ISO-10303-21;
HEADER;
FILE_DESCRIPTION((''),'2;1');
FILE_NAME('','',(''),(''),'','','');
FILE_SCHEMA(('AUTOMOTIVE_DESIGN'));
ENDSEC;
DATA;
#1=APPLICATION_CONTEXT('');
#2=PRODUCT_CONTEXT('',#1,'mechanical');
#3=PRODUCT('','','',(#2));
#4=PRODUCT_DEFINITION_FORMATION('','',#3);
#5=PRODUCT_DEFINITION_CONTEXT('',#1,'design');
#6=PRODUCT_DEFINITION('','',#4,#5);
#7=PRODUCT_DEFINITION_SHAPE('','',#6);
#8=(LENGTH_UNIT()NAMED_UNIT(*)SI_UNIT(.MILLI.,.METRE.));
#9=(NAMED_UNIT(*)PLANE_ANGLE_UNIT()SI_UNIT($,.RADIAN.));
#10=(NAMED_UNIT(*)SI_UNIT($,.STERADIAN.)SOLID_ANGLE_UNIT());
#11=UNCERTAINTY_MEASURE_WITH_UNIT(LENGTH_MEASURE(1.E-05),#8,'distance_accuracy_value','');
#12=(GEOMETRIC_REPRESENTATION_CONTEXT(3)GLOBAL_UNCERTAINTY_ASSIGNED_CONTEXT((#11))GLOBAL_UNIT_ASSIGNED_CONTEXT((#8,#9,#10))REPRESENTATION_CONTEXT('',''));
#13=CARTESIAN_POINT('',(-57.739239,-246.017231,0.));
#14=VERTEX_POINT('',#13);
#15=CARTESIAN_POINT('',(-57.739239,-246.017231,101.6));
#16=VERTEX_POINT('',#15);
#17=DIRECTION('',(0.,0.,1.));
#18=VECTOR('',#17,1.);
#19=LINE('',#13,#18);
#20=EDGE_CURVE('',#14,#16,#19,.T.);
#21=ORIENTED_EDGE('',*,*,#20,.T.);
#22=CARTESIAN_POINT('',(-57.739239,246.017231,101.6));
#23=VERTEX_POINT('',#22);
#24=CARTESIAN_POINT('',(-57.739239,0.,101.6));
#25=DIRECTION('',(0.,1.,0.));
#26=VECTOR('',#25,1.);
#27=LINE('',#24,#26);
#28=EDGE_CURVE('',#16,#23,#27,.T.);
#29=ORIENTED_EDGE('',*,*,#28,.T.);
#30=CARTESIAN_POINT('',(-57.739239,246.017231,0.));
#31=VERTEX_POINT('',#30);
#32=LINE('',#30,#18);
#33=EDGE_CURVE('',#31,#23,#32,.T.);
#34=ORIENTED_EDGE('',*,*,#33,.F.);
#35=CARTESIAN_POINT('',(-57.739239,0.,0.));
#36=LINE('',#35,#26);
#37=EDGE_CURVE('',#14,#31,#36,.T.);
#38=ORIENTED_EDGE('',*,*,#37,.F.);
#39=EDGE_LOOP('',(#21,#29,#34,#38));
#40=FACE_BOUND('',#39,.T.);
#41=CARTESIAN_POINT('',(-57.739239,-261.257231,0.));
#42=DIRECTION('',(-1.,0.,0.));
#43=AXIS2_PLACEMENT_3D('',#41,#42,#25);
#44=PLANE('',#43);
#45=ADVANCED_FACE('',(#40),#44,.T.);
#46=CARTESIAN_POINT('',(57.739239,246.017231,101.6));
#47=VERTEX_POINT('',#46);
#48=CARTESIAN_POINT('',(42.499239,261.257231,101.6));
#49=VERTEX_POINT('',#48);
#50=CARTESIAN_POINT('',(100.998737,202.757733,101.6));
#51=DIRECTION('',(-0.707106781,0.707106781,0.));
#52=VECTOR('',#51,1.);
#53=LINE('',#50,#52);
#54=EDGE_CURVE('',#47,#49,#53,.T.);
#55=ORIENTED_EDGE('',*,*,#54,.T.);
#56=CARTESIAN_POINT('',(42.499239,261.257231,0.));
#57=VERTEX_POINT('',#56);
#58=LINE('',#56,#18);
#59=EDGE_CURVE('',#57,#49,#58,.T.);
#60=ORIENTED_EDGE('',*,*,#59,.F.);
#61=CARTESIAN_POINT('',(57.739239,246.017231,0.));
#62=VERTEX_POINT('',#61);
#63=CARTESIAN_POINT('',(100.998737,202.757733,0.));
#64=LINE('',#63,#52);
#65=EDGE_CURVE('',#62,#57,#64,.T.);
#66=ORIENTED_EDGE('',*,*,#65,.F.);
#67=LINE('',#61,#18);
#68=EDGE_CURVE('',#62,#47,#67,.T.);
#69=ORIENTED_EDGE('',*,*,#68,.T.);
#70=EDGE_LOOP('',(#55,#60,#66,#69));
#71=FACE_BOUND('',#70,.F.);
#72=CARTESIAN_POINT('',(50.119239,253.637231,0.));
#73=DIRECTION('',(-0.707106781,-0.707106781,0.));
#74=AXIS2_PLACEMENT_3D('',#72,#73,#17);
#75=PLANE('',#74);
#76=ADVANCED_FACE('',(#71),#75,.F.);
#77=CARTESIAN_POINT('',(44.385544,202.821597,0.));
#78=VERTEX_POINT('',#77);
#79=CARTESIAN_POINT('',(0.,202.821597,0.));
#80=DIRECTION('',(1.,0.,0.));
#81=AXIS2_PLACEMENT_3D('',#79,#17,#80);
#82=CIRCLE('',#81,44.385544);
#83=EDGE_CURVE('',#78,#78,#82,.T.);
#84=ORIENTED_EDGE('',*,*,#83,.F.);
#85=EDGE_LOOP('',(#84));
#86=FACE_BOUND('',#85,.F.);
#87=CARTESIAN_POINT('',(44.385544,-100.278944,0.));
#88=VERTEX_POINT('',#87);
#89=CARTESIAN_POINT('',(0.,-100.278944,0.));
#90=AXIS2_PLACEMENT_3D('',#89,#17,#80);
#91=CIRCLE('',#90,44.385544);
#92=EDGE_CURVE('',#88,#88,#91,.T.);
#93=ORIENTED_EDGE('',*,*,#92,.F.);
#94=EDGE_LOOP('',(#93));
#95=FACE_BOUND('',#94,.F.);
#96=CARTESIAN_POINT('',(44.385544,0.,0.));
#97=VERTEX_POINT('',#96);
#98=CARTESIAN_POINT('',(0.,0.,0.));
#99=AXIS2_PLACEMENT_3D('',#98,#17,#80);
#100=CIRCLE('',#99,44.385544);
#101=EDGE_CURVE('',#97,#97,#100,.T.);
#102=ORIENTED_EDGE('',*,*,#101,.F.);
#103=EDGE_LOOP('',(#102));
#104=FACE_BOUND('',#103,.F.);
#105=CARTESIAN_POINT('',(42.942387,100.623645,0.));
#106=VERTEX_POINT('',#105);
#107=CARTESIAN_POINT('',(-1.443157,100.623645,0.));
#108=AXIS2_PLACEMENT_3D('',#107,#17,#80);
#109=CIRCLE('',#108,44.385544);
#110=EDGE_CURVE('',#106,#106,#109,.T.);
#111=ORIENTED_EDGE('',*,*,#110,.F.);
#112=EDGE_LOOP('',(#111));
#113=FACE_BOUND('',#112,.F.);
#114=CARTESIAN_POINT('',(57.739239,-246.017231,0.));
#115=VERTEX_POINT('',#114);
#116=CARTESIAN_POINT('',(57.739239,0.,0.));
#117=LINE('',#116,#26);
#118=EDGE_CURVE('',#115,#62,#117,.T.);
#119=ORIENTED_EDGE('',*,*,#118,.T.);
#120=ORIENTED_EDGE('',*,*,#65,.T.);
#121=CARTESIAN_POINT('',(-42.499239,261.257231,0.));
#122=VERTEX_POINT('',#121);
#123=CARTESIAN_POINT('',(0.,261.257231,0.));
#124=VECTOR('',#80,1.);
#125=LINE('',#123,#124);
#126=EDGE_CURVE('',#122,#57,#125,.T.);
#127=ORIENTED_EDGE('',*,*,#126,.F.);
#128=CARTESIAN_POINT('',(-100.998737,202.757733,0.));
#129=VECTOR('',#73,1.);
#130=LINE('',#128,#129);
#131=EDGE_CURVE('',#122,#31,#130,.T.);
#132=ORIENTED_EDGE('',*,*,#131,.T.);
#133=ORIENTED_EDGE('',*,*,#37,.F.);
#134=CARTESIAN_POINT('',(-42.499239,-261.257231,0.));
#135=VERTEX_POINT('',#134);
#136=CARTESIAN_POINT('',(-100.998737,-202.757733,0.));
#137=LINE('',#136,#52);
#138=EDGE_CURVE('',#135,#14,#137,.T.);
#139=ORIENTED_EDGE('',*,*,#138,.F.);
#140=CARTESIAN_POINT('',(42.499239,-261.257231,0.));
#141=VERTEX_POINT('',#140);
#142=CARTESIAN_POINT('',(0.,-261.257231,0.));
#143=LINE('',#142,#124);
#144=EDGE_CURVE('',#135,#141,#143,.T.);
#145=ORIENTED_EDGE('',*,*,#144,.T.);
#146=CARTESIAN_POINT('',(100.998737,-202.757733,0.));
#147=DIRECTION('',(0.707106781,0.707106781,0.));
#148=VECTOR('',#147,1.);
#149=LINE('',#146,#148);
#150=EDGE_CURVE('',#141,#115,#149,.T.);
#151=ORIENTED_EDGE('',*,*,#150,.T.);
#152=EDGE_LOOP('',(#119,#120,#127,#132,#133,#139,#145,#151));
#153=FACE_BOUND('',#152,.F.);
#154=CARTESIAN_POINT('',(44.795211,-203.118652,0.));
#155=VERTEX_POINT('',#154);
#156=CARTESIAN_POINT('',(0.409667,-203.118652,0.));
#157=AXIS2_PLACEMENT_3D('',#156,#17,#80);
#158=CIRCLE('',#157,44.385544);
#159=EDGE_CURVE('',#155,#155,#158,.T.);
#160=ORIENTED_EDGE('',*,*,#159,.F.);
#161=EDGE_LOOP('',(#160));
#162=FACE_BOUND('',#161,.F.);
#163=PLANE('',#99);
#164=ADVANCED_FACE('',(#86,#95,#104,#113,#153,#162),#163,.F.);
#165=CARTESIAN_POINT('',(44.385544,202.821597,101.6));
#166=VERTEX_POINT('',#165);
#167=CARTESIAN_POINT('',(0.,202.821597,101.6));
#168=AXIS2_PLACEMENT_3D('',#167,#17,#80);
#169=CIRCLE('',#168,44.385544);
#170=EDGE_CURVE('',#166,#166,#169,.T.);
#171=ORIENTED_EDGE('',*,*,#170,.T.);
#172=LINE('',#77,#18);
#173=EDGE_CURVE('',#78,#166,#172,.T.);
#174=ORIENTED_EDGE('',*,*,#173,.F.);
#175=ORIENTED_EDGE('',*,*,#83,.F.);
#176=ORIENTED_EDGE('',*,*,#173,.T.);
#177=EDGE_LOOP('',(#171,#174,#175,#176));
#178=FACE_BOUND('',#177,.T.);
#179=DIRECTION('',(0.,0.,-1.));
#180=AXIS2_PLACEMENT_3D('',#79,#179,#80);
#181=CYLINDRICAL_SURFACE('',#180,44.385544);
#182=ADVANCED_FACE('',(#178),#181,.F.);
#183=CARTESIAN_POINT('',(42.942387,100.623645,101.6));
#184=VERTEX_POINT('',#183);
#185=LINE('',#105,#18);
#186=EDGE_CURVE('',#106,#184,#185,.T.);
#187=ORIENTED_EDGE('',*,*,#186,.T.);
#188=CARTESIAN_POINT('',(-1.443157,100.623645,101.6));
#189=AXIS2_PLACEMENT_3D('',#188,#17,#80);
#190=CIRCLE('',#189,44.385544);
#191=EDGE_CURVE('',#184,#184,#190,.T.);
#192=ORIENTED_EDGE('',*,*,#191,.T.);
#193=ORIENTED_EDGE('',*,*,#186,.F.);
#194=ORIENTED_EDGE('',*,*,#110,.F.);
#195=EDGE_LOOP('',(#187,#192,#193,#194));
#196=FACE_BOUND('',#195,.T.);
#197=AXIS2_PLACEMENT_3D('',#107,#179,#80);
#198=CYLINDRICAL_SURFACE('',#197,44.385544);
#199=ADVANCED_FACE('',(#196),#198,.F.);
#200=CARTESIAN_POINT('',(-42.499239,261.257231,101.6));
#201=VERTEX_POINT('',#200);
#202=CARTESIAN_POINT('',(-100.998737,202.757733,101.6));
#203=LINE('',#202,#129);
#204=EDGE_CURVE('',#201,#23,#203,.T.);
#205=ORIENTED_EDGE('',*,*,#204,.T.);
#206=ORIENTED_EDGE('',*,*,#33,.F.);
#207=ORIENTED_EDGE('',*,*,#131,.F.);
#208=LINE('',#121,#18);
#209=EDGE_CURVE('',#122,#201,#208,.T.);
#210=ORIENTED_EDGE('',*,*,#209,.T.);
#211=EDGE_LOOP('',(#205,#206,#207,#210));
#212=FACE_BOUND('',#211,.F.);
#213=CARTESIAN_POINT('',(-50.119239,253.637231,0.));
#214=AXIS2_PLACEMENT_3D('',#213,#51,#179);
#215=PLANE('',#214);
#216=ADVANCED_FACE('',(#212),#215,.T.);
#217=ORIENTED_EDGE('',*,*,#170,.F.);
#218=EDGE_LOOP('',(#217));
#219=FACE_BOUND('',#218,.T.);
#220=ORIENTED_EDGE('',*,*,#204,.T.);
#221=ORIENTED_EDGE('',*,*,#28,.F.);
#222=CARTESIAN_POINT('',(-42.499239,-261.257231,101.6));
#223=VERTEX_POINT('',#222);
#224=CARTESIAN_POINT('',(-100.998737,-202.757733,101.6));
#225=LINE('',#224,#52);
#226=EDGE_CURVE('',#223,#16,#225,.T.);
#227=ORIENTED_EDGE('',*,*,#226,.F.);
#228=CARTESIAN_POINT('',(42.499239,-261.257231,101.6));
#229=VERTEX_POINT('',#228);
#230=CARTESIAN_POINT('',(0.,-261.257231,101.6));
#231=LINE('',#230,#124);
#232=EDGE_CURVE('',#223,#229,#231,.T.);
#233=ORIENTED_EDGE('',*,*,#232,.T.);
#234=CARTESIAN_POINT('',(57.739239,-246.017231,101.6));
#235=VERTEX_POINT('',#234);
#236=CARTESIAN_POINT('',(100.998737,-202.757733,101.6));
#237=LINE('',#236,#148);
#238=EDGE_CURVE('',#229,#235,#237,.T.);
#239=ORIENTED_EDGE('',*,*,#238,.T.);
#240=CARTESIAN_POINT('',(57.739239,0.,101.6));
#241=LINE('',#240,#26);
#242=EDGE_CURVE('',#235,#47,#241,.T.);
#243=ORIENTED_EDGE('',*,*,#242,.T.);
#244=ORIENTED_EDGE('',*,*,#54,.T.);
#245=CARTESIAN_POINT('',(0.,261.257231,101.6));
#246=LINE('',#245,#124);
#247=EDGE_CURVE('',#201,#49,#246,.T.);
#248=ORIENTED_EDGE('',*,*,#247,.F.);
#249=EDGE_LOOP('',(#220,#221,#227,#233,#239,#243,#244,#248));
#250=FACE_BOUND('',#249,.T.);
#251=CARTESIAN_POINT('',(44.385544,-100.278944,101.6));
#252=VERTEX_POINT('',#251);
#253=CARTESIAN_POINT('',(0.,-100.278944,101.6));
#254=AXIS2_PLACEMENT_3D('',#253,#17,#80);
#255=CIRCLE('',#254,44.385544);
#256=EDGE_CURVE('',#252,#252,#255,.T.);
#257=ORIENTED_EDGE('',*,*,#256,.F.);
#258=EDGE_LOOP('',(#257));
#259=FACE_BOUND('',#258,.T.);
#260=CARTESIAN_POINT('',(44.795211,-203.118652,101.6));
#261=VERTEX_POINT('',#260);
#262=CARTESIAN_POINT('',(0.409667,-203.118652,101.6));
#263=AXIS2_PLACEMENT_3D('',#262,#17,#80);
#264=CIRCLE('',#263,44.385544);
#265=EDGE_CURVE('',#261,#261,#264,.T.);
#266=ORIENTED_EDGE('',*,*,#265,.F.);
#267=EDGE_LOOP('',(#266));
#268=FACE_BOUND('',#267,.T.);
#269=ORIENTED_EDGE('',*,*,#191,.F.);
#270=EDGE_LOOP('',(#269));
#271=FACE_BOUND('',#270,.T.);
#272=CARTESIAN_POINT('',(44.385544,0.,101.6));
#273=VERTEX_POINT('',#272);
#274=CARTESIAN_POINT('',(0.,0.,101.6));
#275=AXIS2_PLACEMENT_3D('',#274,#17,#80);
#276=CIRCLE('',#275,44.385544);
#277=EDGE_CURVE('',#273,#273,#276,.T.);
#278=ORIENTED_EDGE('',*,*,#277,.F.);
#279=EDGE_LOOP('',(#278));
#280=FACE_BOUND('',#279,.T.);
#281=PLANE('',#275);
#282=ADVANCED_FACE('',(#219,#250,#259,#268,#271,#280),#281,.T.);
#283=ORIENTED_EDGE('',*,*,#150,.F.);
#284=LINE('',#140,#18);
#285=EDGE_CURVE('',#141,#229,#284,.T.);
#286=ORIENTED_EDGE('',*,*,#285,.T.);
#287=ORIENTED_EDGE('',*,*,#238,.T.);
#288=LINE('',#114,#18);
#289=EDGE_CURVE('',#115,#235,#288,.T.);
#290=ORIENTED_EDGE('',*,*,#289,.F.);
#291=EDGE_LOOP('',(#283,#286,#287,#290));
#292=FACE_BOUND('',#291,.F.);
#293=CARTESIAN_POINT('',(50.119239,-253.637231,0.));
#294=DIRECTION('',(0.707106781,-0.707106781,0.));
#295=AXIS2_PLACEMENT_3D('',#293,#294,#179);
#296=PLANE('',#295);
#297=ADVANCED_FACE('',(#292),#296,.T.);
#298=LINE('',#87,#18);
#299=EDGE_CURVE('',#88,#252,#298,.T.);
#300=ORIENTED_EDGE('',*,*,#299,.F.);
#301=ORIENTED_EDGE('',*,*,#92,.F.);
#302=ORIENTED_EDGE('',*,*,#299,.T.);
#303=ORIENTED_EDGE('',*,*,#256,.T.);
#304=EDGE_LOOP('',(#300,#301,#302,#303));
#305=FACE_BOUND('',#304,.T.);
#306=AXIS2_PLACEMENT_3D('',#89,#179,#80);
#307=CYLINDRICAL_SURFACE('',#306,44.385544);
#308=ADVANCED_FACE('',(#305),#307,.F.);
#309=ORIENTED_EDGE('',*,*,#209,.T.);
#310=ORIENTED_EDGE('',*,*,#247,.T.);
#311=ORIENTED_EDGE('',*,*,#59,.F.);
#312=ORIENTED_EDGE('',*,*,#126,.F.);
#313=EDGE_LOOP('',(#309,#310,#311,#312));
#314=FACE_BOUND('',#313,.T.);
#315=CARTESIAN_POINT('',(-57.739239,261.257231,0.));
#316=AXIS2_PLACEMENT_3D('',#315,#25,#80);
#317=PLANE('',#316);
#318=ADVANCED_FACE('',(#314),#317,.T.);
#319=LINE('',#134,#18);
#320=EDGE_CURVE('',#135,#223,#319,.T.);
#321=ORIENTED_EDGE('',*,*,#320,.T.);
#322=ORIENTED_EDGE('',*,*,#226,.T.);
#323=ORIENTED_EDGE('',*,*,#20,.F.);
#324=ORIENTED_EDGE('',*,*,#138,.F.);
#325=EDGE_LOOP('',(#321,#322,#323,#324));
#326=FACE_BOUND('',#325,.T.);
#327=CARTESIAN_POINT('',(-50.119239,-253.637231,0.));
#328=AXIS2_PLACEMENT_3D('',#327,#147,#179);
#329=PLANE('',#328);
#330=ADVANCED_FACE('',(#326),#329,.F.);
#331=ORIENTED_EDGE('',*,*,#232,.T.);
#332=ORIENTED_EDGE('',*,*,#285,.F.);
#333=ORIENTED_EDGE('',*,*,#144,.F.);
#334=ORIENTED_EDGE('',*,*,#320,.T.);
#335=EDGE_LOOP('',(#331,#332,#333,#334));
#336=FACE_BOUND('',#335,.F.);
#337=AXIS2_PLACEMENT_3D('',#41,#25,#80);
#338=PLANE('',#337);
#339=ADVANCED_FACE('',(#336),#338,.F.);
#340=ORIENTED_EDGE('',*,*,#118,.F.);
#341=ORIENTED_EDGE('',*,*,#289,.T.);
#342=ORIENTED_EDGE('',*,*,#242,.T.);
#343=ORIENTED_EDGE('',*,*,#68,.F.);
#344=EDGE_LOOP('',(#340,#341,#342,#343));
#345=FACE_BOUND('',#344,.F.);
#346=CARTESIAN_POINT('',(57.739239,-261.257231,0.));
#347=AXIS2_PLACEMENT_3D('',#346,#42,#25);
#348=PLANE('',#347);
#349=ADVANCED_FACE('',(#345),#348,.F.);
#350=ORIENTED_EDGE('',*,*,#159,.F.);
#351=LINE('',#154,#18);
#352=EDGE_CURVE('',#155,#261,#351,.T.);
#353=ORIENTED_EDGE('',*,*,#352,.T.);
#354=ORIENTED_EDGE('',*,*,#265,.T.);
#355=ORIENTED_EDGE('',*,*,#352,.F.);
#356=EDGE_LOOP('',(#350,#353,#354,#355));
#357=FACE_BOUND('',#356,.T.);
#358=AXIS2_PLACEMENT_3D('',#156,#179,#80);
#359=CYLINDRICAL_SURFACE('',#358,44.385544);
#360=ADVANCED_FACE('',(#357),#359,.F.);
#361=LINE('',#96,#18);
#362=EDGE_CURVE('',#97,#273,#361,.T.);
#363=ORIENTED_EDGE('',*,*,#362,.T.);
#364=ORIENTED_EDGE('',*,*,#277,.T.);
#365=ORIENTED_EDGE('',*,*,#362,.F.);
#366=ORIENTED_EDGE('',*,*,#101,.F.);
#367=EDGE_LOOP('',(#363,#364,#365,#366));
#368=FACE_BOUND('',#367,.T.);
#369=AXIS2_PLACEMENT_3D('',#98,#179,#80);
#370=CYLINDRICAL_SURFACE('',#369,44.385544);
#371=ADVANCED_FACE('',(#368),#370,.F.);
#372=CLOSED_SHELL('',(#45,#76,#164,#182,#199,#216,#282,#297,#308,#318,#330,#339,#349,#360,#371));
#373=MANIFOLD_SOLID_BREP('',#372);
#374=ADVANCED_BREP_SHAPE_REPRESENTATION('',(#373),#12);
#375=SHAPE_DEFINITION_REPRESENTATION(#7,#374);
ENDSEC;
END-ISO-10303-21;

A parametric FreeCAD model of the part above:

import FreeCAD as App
import Part
import Sketcher

V = App.Vector
Q = App.Units.Quantity


def edges_at(feature, points):
    """Names of the edges that pass closest to the given points."""
    edges = feature.Shape.Edges
    near = lambda p: min(range(len(edges)), key=lambda i: edges[i].distToShape(Part.Vertex(*p))[0])
    return sorted({f"Edge{near(p) + 1}" for p in points})


def add_polygon(sketch, points):
    """Adds a closed chain of lines whose ends are joined by coincident constraints."""
    first, n = sketch.GeometryCount, len(points)
    for a, b in zip(points, points[1:] + points[:1]):
        sketch.addGeometry(Part.LineSegment(App.Vector(*a, 0), App.Vector(*b, 0)), False)
    for i in range(n):
        sketch.addConstraint(Sketcher.Constraint("Coincident", first + i, 2, first + (i + 1) % n, 1))

doc = App.newDocument("Part")
body = doc.addObject("PartDesign::Body", "Body")

# Sketch on XY plane
sketch1 = doc.addObject("Sketcher::SketchObject", "Sketch")
body.addObject(sketch1)
sketch1.AttachmentSupport = (doc.XY_Plane, [""])
sketch1.MapMode = "FlatFace"
add_polygon(sketch1, [(-58, 261), (-58, -261), (58, -261), (58, 261)])  # lines 0-3
sketch1.addGeometry(Part.Circle(V(0, -203, 0), V(0, 0, 1), 44), False)  # 4
sketch1.addGeometry(Part.Circle(V(0, -100, 0), V(0, 0, 1), 44), False)  # 5
sketch1.addGeometry(Part.Circle(V(-1, 101, 0), V(0, 0, 1), 44), False)  # 6
sketch1.addGeometry(Part.Circle(V(0, 0, 0), V(0, 0, 1), 44), False)  # 7
sketch1.addGeometry(Part.Circle(V(0, 203, 0), V(0, 0, 1), 44), False)  # 8
sketch1.addConstraint(Sketcher.Constraint("Vertical", 0))
sketch1.addConstraint(Sketcher.Constraint("Horizontal", 1))
sketch1.addConstraint(Sketcher.Constraint("Vertical", 2))
sketch1.addConstraint(Sketcher.Constraint("Horizontal", 3))
sketch1.addConstraint(Sketcher.Constraint("Coincident", 7, 3, -1, 1))
sketch1.addConstraint(Sketcher.Constraint("Equal", 4, 5))
sketch1.addConstraint(Sketcher.Constraint("Equal", 5, 6))
sketch1.addConstraint(Sketcher.Constraint("Equal", 6, 7))
sketch1.addConstraint(Sketcher.Constraint("Equal", 7, 8))
sketch1.addConstraint(Sketcher.Constraint("Symmetric", 0, 2, 2, 2, -1, 1))
sketch1.addConstraint(Sketcher.Constraint("PointOnObject", 5, 3, -2))
sketch1.addConstraint(Sketcher.Constraint("PointOnObject", 8, 3, -2))
sketch1.addConstraint(Sketcher.Constraint("Diameter", 4, Q("88.771088 mm")))
sketch1.addConstraint(Sketcher.Constraint("DistanceY", 0, 2, 0, 1, Q("522.514462 mm")))
sketch1.addConstraint(Sketcher.Constraint("DistanceX", 1, 1, 1, 2, Q("115.478478 mm")))
sketch1.addConstraint(Sketcher.Constraint("DistanceY", 4, 3, -1, 1, Q("203.118652 mm")))
sketch1.addConstraint(Sketcher.Constraint("DistanceY", 4, 3, 5, 3, Q("102.839708 mm")))
sketch1.addConstraint(Sketcher.Constraint("DistanceY", 5, 3, 6, 3, Q("200.902589 mm")))
sketch1.addConstraint(Sketcher.Constraint("DistanceY", 6, 3, 8, 3, Q("102.197952 mm")))
sketch1.addConstraint(Sketcher.Constraint("DistanceX", 0, 2, 6, 3, Q("56.296082 mm")))
sketch1.addConstraint(Sketcher.Constraint("DistanceX", -1, 1, 4, 3, Q("0.409667 mm")))
pad1 = doc.addObject("PartDesign::Pad", "Pad")
body.addObject(pad1)
pad1.Profile = sketch1
pad1.Length = Q("4 in")
doc.recompute()

chamfer = doc.addObject("PartDesign::Chamfer", "Chamfer")
body.addObject(chamfer)
chamfer.Base = (pad1, edges_at(pad1, [(57.739, -261.257, 50.8)]))
chamfer.Size = Q("0.6 in")
doc.recompute()

chamfer2 = doc.addObject("PartDesign::Chamfer", "Chamfer001")
body.addObject(chamfer2)
chamfer2.Base = (chamfer, edges_at(chamfer, [(-57.739, -261.257, 50.8)]))
chamfer2.Size = Q("0.6 in")
doc.recompute()

chamfer3 = doc.addObject("PartDesign::Chamfer", "Chamfer002")
body.addObject(chamfer3)
chamfer3.Base = (chamfer2, edges_at(chamfer2, [(57.739, 261.257, 50.8)]))
chamfer3.Size = Q("0.6 in")
doc.recompute()

chamfer4 = doc.addObject("PartDesign::Chamfer", "Chamfer003")
body.addObject(chamfer4)
chamfer4.Base = (chamfer3, edges_at(chamfer3, [(-57.739, 261.257, 50.8)]))
chamfer4.Size = Q("0.6 in")

doc.recompute()
